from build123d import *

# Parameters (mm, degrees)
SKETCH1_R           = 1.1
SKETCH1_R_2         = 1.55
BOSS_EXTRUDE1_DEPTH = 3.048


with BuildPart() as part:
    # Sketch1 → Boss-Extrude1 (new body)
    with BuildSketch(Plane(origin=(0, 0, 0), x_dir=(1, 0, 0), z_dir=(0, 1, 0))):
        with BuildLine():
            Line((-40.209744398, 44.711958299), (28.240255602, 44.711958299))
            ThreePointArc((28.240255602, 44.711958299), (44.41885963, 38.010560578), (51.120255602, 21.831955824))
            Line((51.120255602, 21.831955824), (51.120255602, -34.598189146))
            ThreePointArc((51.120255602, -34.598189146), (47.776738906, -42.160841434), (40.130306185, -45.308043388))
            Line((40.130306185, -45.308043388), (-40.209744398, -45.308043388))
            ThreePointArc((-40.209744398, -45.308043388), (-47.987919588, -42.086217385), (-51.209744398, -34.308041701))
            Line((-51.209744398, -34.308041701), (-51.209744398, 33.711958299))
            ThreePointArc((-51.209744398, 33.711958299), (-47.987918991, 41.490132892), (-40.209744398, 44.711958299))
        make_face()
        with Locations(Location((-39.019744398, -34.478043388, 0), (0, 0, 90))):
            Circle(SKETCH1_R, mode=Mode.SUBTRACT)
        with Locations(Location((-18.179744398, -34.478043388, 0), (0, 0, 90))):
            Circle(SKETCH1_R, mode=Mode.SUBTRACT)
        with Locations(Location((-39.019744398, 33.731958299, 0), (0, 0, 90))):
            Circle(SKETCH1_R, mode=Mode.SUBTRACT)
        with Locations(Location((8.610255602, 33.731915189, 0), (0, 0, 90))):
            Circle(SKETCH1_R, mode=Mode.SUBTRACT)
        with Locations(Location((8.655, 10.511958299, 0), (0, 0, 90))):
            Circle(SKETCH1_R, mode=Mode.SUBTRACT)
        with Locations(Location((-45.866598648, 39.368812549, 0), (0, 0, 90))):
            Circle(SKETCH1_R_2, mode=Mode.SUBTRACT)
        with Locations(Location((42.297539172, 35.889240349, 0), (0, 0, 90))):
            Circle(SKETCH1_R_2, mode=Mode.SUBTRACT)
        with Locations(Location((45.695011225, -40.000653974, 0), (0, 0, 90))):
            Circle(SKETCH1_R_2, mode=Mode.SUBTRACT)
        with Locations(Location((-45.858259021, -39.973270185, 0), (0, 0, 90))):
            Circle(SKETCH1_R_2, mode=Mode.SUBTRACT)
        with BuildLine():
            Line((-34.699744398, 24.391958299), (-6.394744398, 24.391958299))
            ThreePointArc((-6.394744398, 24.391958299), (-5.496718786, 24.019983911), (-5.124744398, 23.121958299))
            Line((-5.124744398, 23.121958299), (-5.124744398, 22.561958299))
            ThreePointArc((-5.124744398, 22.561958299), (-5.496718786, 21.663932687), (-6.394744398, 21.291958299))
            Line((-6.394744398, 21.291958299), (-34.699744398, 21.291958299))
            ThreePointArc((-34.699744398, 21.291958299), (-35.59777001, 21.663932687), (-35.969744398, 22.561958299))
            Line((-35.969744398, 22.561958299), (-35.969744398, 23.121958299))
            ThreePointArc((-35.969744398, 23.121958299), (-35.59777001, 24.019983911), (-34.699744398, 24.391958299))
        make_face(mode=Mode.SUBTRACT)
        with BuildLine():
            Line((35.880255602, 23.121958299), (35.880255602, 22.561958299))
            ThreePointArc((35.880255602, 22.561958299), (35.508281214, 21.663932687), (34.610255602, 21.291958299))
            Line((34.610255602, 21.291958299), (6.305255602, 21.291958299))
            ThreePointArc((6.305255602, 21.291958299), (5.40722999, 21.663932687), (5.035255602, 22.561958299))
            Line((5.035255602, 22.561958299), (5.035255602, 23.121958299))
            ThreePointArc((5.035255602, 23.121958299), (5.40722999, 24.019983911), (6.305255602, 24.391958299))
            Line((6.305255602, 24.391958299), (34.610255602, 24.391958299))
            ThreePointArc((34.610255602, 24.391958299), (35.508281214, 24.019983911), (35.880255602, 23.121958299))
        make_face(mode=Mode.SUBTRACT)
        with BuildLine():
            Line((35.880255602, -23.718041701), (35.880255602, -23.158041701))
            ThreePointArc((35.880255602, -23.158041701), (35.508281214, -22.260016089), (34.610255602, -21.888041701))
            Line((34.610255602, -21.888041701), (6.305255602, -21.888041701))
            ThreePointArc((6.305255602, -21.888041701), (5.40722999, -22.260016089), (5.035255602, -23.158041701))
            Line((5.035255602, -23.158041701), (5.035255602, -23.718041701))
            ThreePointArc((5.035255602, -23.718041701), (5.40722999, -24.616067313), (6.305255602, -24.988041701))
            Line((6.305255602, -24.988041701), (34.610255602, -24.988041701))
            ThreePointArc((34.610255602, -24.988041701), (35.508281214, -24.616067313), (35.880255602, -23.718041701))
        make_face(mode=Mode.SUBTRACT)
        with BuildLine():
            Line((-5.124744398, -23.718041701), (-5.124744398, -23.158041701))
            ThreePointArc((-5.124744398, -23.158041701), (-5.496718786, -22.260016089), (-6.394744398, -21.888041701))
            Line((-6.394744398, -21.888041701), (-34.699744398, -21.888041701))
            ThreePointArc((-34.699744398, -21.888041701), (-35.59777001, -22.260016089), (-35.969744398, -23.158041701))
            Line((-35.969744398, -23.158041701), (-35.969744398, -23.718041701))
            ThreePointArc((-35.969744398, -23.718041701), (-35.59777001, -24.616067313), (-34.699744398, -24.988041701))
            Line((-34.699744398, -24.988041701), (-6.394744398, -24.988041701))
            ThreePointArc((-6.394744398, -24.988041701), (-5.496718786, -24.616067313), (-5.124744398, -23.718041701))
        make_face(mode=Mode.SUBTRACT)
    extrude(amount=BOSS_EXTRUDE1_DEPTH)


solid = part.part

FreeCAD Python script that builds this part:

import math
import FreeCAD as App
import Part
import Sketcher
from FreeCAD import Vector
Q = App.Units.Quantity

doc = App.newDocument("Part")
body = doc.addObject("PartDesign::Body", "Body")

sketch1 = body.newObject("Sketcher::SketchObject", "Sketch")
sketch1.AttachmentSupport = (doc.getObject("XZ_Plane"), [""])
sketch1.MapMode = "FlatFace"
sketch1.addGeometry(Part.LineSegment(Vector(28.2, -44.7, 0), Vector(-40.2, -44.7, 0)), False)
sketch1.addGeometry(Part.ArcOfCircle(Part.Circle(Vector(-40.2, -33.7, 0), Vector(0, 0, 1), 11), math.radians(180), math.radians(270)), False)
sketch1.addGeometry(Part.LineSegment(Vector(-51.2, -33.7, 0), Vector(-51.2, 34.3, 0)), False)
sketch1.addGeometry(Part.ArcOfCircle(Part.Circle(Vector(-40.2, 34.3, 0), Vector(0, 0, 1), 11), math.radians(90), math.radians(180)), False)
sketch1.addGeometry(Part.LineSegment(Vector(-40.2, 45.3, 0), Vector(40.1, 45.3, 0)), False)
sketch1.addGeometry(Part.ArcOfCircle(Part.Circle(Vector(40, 34.2, 0), Vector(0, 0, 1), 11.1), math.radians(2), math.radians(90)), False)
sketch1.addGeometry(Part.LineSegment(Vector(51.1, 34.6, 0), Vector(51.1, -21.8, 0)), False)
sketch1.addGeometry(Part.ArcOfCircle(Part.Circle(Vector(28.2, -21.8, 0), Vector(0, 0, 1), 22.9), math.radians(-90), math.radians(0)), False)
sketch1.addGeometry(Part.Circle(Vector(45.7, 40, 0), Vector(0, 0, 1), 1.6), False)
sketch1.addGeometry(Part.ArcOfCircle(Part.Circle(Vector(34.6, 23.7, 0), Vector(0, 0, 1), 1.3), math.radians(0), math.radians(90)), False)
sketch1.addGeometry(Part.LineSegment(Vector(34.6, 25, 0), Vector(6.3, 25, 0)), False)
sketch1.addGeometry(Part.ArcOfCircle(Part.Circle(Vector(6.3, 23.7, 0), Vector(0, 0, 1), 1.3), math.radians(90), math.radians(180)), False)
sketch1.addGeometry(Part.LineSegment(Vector(5, 23.7, 0), Vector(5, 23.2, 0)), False)
sketch1.addGeometry(Part.ArcOfCircle(Part.Circle(Vector(6.3, 23.2, 0), Vector(0, 0, 1), 1.3), math.radians(180), math.radians(270)), False)
sketch1.addGeometry(Part.LineSegment(Vector(6.3, 21.9, 0), Vector(34.6, 21.9, 0)), False)
sketch1.addGeometry(Part.ArcOfCircle(Part.Circle(Vector(34.6, 23.2, 0), Vector(0, 0, 1), 1.3), math.radians(-90), math.radians(0)), False)
sketch1.addGeometry(Part.LineSegment(Vector(35.9, 23.2, 0), Vector(35.9, 23.7, 0)), False)
sketch1.addGeometry(Part.Circle(Vector(-18.2, 34.5, 0), Vector(0, 0, 1), 1.1), False)
sketch1.addGeometry(Part.ArcOfCircle(Part.Circle(Vector(-6.4, 23.7, 0), Vector(0, 0, 1), 1.3), math.radians(0), math.radians(90)), False)
sketch1.addGeometry(Part.LineSegment(Vector(-6.4, 25, 0), Vector(-34.7, 25, 0)), False)
sketch1.addGeometry(Part.ArcOfCircle(Part.Circle(Vector(-34.7, 23.7, 0), Vector(0, 0, 1), 1.3), math.radians(90), math.radians(180)), False)
sketch1.addGeometry(Part.LineSegment(Vector(-36, 23.7, 0), Vector(-36, 23.2, 0)), False)
sketch1.addGeometry(Part.ArcOfCircle(Part.Circle(Vector(-34.7, 23.2, 0), Vector(0, 0, 1), 1.3), math.radians(180), math.radians(270)), False)
sketch1.addGeometry(Part.LineSegment(Vector(-34.7, 21.9, 0), Vector(-6.4, 21.9, 0)), False)
sketch1.addGeometry(Part.ArcOfCircle(Part.Circle(Vector(-6.4, 23.2, 0), Vector(0, 0, 1), 1.3), math.radians(-90), math.radians(0)), False)
sketch1.addGeometry(Part.LineSegment(Vector(-5.1, 23.2, 0), Vector(-5.1, 23.7, 0)), False)
sketch1.addGeometry(Part.Circle(Vector(-45.9, 40, 0), Vector(0, 0, 1), 1.6), False)
sketch1.addGeometry(Part.Circle(Vector(-39, 34.5, 0), Vector(0, 0, 1), 1.1), False)
sketch1.addGeometry(Part.Circle(Vector(8.7, -10.5, 0), Vector(0, 0, 1), 1.1), False)
sketch1.addGeometry(Part.Circle(Vector(42.3, -35.9, 0), Vector(0, 0, 1), 1.6), False)
sketch1.addGeometry(Part.LineSegment(Vector(35.9, -23.1, 0), Vector(35.9, -22.6, 0)), False)
sketch1.addGeometry(Part.ArcOfCircle(Part.Circle(Vector(34.6, -22.6, 0), Vector(0, 0, 1), 1.3), math.radians(0), math.radians(90)), False)
sketch1.addGeometry(Part.LineSegment(Vector(34.6, -21.3, 0), Vector(6.3, -21.3, 0)), False)
sketch1.addGeometry(Part.ArcOfCircle(Part.Circle(Vector(6.3, -22.6, 0), Vector(0, 0, 1), 1.3), math.radians(90), math.radians(180)), False)
sketch1.addGeometry(Part.LineSegment(Vector(5, -22.6, 0), Vector(5, -23.1, 0)), False)
sketch1.addGeometry(Part.ArcOfCircle(Part.Circle(Vector(6.3, -23.1, 0), Vector(0, 0, 1), 1.3), math.radians(180), math.radians(270)), False)
sketch1.addGeometry(Part.LineSegment(Vector(6.3, -24.4, 0), Vector(34.6, -24.4, 0)), False)
sketch1.addGeometry(Part.ArcOfCircle(Part.Circle(Vector(34.6, -23.1, 0), Vector(0, 0, 1), 1.3), math.radians(-90), math.radians(0)), False)
sketch1.addGeometry(Part.Circle(Vector(8.6, -33.7, 0), Vector(0, 0, 1), 1.1), False)
sketch1.addGeometry(Part.LineSegment(Vector(-34.7, -24.4, 0), Vector(-6.4, -24.4, 0)), False)
sketch1.addGeometry(Part.ArcOfCircle(Part.Circle(Vector(-6.4, -23.1, 0), Vector(0, 0, 1), 1.3), math.radians(-90), math.radians(0)), False)
sketch1.addGeometry(Part.LineSegment(Vector(-5.1, -23.1, 0), Vector(-5.1, -22.6, 0)), False)
sketch1.addGeometry(Part.ArcOfCircle(Part.Circle(Vector(-6.4, -22.6, 0), Vector(0, 0, 1), 1.3), math.radians(0), math.radians(90)), False)
sketch1.addGeometry(Part.LineSegment(Vector(-6.4, -21.3, 0), Vector(-34.7, -21.3, 0)), False)
sketch1.addGeometry(Part.ArcOfCircle(Part.Circle(Vector(-34.7, -22.6, 0), Vector(0, 0, 1), 1.3), math.radians(90), math.radians(180)), False)
sketch1.addGeometry(Part.LineSegment(Vector(-36, -22.6, 0), Vector(-36, -23.1, 0)), False)
sketch1.addGeometry(Part.ArcOfCircle(Part.Circle(Vector(-34.7, -23.1, 0), Vector(0, 0, 1), 1.3), math.radians(180), math.radians(270)), False)
sketch1.addGeometry(Part.Circle(Vector(-39, -33.7, 0), Vector(0, 0, 1), 1.1), False)
sketch1.addGeometry(Part.Circle(Vector(-45.9, -39.4, 0), Vector(0, 0, 1), 1.6), False)
sketch1.addConstraint(Sketcher.Constraint("Tangent", 0, 2, 1, 2))
sketch1.addConstraint(Sketcher.Constraint("Tangent", 1, 1, 2, 1))
sketch1.addConstraint(Sketcher.Constraint("Tangent", 2, 2, 3, 2))
sketch1.addConstraint(Sketcher.Constraint("Tangent", 3, 1, 4, 1))
sketch1.addConstraint(Sketcher.Constraint("Coincident", 4, 2, 5, 2))
sketch1.addConstraint(Sketcher.Constraint("Coincident", 5, 1, 6, 1))
sketch1.addConstraint(Sketcher.Constraint("Tangent", 6, 2, 7, 2))
sketch1.addConstraint(Sketcher.Constraint("Tangent", 7, 1, 0, 1))
sketch1.addConstraint(Sketcher.Constraint("Tangent", 9, 2, 10, 1))
sketch1.addConstraint(Sketcher.Constraint("Tangent", 10, 2, 11, 1))
sketch1.addConstraint(Sketcher.Constraint("Tangent", 11, 2, 12, 1))
sketch1.addConstraint(Sketcher.Constraint("Tangent", 12, 2, 13, 1))
sketch1.addConstraint(Sketcher.Constraint("Tangent", 13, 2, 14, 1))
sketch1.addConstraint(Sketcher.Constraint("Tangent", 14, 2, 15, 1))
sketch1.addConstraint(Sketcher.Constraint("Tangent", 15, 2, 16, 1))
sketch1.addConstraint(Sketcher.Constraint("Tangent", 16, 2, 9, 1))
sketch1.addConstraint(Sketcher.Constraint("Tangent", 18, 2, 19, 1))
sketch1.addConstraint(Sketcher.Constraint("Tangent", 19, 2, 20, 1))
sketch1.addConstraint(Sketcher.Constraint("Tangent", 20, 2, 21, 1))
sketch1.addConstraint(Sketcher.Constraint("Tangent", 21, 2, 22, 1))
sketch1.addConstraint(Sketcher.Constraint("Tangent", 22, 2, 23, 1))
sketch1.addConstraint(Sketcher.Constraint("Tangent", 23, 2, 24, 1))
sketch1.addConstraint(Sketcher.Constraint("Tangent", 24, 2, 25, 1))
sketch1.addConstraint(Sketcher.Constraint("Tangent", 25, 2, 18, 1))
sketch1.addConstraint(Sketcher.Constraint("Tangent", 30, 2, 31, 1))
sketch1.addConstraint(Sketcher.Constraint("Tangent", 31, 2, 32, 1))
sketch1.addConstraint(Sketcher.Constraint("Tangent", 32, 2, 33, 1))
sketch1.addConstraint(Sketcher.Constraint("Tangent", 33, 2, 34, 1))
sketch1.addConstraint(Sketcher.Constraint("Tangent", 34, 2, 35, 1))
sketch1.addConstraint(Sketcher.Constraint("Tangent", 35, 2, 36, 1))
sketch1.addConstraint(Sketcher.Constraint("Tangent", 36, 2, 37, 1))
sketch1.addConstraint(Sketcher.Constraint("Tangent", 37, 2, 30, 1))
sketch1.addConstraint(Sketcher.Constraint("Tangent", 39, 2, 40, 1))
sketch1.addConstraint(Sketcher.Constraint("Tangent", 40, 2, 41, 1))
sketch1.addConstraint(Sketcher.Constraint("Tangent", 41, 2, 42, 1))
sketch1.addConstraint(Sketcher.Constraint("Tangent", 42, 2, 43, 1))
sketch1.addConstraint(Sketcher.Constraint("Tangent", 43, 2, 44, 1))
sketch1.addConstraint(Sketcher.Constraint("Tangent", 44, 2, 45, 1))
sketch1.addConstraint(Sketcher.Constraint("Tangent", 45, 2, 46, 1))
sketch1.addConstraint(Sketcher.Constraint("Tangent", 46, 2, 39, 1))
sketch1.addConstraint(Sketcher.Constraint("Horizontal", 0))
sketch1.addConstraint(Sketcher.Constraint("Vertical", 2))
sketch1.addConstraint(Sketcher.Constraint("Horizontal", 4))
sketch1.addConstraint(Sketcher.Constraint("Vertical", 6))
sketch1.addConstraint(Sketcher.Constraint("Horizontal", 10))
sketch1.addConstraint(Sketcher.Constraint("Vertical", 12))
sketch1.addConstraint(Sketcher.Constraint("Horizontal", 14))
sketch1.addConstraint(Sketcher.Constraint("Vertical", 16))
sketch1.addConstraint(Sketcher.Constraint("Horizontal", 19))
sketch1.addConstraint(Sketcher.Constraint("Vertical", 21))
sketch1.addConstraint(Sketcher.Constraint("Horizontal", 23))
sketch1.addConstraint(Sketcher.Constraint("Vertical", 25))
sketch1.addConstraint(Sketcher.Constraint("Vertical", 30))
sketch1.addConstraint(Sketcher.Constraint("Horizontal", 32))
sketch1.addConstraint(Sketcher.Constraint("Vertical", 34))
sketch1.addConstraint(Sketcher.Constraint("Horizontal", 36))
sketch1.addConstraint(Sketcher.Constraint("Horizontal", 39))
sketch1.addConstraint(Sketcher.Constraint("Vertical", 41))
sketch1.addConstraint(Sketcher.Constraint("Horizontal", 43))
sketch1.addConstraint(Sketcher.Constraint("Vertical", 45))
sketch1.addConstraint(Sketcher.Constraint("Equal", 1, 3))
sketch1.addConstraint(Sketcher.Constraint("Equal", 9, 11))
sketch1.addConstraint(Sketcher.Constraint("Equal", 11, 13))
sketch1.addConstraint(Sketcher.Constraint("Equal", 13, 15))
sketch1.addConstraint(Sketcher.Constraint("Equal", 15, 18))
sketch1.addConstraint(Sketcher.Constraint("Equal", 18, 20))
sketch1.addConstraint(Sketcher.Constraint("Equal", 20, 22))
sketch1.addConstraint(Sketcher.Constraint("Equal", 22, 24))
sketch1.addConstraint(Sketcher.Constraint("Equal", 8, 26))
sketch1.addConstraint(Sketcher.Constraint("Equal", 17, 27))
sketch1.addConstraint(Sketcher.Constraint("Equal", 27, 28))
sketch1.addConstraint(Sketcher.Constraint("Equal", 26, 29))
sketch1.addConstraint(Sketcher.Constraint("Equal", 24, 31))
sketch1.addConstraint(Sketcher.Constraint("Equal", 31, 33))
sketch1.addConstraint(Sketcher.Constraint("Equal", 33, 35))
sketch1.addConstraint(Sketcher.Constraint("Equal", 35, 37))
sketch1.addConstraint(Sketcher.Constraint("Equal", 28, 38))
sketch1.addConstraint(Sketcher.Constraint("Equal", 37, 40))
sketch1.addConstraint(Sketcher.Constraint("Equal", 40, 42))
sketch1.addConstraint(Sketcher.Constraint("Equal", 42, 44))
sketch1.addConstraint(Sketcher.Constraint("Equal", 44, 46))
sketch1.addConstraint(Sketcher.Constraint("Equal", 38, 47))
sketch1.addConstraint(Sketcher.Constraint("Equal", 29, 48))
sketch1.addConstraint(Sketcher.Constraint("Horizontal", 11, 3, 18, 3))
sketch1.addConstraint(Sketcher.Constraint("Horizontal", 15, 3, 22, 3))
sketch1.addConstraint(Sketcher.Constraint("Horizontal", 17, 3, 27, 3))
sketch1.addConstraint(Sketcher.Constraint("Horizontal", 37, 3, 40, 3))
sketch1.addConstraint(Sketcher.Constraint("Horizontal", 33, 3, 42, 3))
sketch1.addConstraint(Sketcher.Constraint("Vertical", 15, 3, 31, 3))
sketch1.addConstraint(Sketcher.Constraint("Vertical", 13, 3, 33, 3))
sketch1.addConstraint(Sketcher.Constraint("Vertical", 24, 3, 40, 3))
sketch1.addConstraint(Sketcher.Constraint("Vertical", 22, 3, 44, 3))
sketch1.addConstraint(Sketcher.Constraint("Vertical", 27, 3, 47, 3))
sketch1.addConstraint(Sketcher.Constraint("Equal", 14, 19))
sketch1.addConstraint(Sketcher.Constraint("Equal", 25, 30))
sketch1.addConstraint(Sketcher.Constraint("Radius", 1, Q("11 mm")))
sketch1.addConstraint(Sketcher.Constraint("Diameter", 8, Q("3.1 mm")))
sketch1.addConstraint(Sketcher.Constraint("Diameter", 17, Q("2.2 mm")))
sketch1.addConstraint(Sketcher.Constraint("Radius", 7, Q("22.88 mm")))
sketch1.addConstraint(Sketcher.Constraint("Radius", 9, Q("1.27 mm")))
sketch1.addConstraint(Sketcher.Constraint("DistanceX", 0, 2, 0, 1, Q("68.45 mm")))
sketch1.addConstraint(Sketcher.Constraint("DistanceY", 2, 1, 2, 2, Q("68.02 mm")))
sketch1.addConstraint(Sketcher.Constraint("DistanceY", 12, 2, 12, 1, Q("0.56 mm")))
sketch1.addConstraint(Sketcher.Constraint("DistanceX", 10, 2, 10, 1, Q("28.305 mm")))
sketch1.addConstraint(Sketcher.Constraint("DistanceX", -1, 1, 28, 3, Q("8.655 mm")))
sketch1.addConstraint(Sketcher.Constraint("Radius", 5, Q("11.089888 mm")))
sketch1.addConstraint(Sketcher.Constraint("DistanceX", 4, 1, 4, 2, Q("80.340051 mm")))
sketch1.addConstraint(Sketcher.Constraint("DistanceX", 48, 3, -1, 1, Q("45.866599 mm")))
sketch1.addConstraint(Sketcher.Constraint("DistanceY", 6, 2, 6, 1, Q("56.430145 mm")))
sketch1.addConstraint(Sketcher.Constraint("DistanceY", 1, 3, -1, 1, Q("33.711958 mm")))
sketch1.addConstraint(Sketcher.Constraint("DistanceX", -1, 1, 8, 3, Q("45.695011 mm")))
sketch1.addConstraint(Sketcher.Constraint("DistanceY", -1, 1, 9, 3, Q("23.718042 mm")))
sketch1.addConstraint(Sketcher.Constraint("DistanceX", 26, 3, -1, 1, Q("45.858259 mm")))
sketch1.addConstraint(Sketcher.Constraint("DistanceY", -1, 1, 26, 3, Q("39.97327 mm")))
sketch1.addConstraint(Sketcher.Constraint("DistanceY", 28, 3, -1, 1, Q("10.511958 mm")))
sketch1.addConstraint(Sketcher.Constraint("DistanceX", -1, 1, 29, 3, Q("42.297539 mm")))
sketch1.addConstraint(Sketcher.Constraint("DistanceY", 29, 3, -1, 1, Q("35.88924 mm")))
sketch1.addConstraint(Sketcher.Constraint("DistanceY", 31, 3, -1, 1, Q("22.561958 mm")))
sketch1.addConstraint(Sketcher.Constraint("DistanceY", 47, 3, -1, 1, Q("33.731958 mm")))
sketch1.addConstraint(Sketcher.Constraint("DistanceX", 1, 3, -1, 1, Q("40.209744 mm")))
sketch1.addConstraint(Sketcher.Constraint("DistanceY", -1, 1, 8, 3, Q("40.000654 mm")))
sketch1.addConstraint(Sketcher.Constraint("DistanceX", -1, 1, 9, 3, Q("34.610256 mm")))
sketch1.addConstraint(Sketcher.Constraint("DistanceX", 17, 3, -1, 1, Q("18.179744 mm")))
sketch1.addConstraint(Sketcher.Constraint("DistanceY", -1, 1, 17, 3, Q("34.478043 mm")))
sketch1.addConstraint(Sketcher.Constraint("DistanceX", 18, 3, -1, 1, Q("6.394744 mm")))
sketch1.addConstraint(Sketcher.Constraint("DistanceX", 27, 3, -1, 1, Q("39.019744 mm")))
sketch1.addConstraint(Sketcher.Constraint("DistanceX", -1, 1, 38, 3, Q("8.610256 mm")))
sketch1.addConstraint(Sketcher.Constraint("DistanceY", 38, 3, -1, 1, Q("33.731915 mm")))
sketch1.addConstraint(Sketcher.Constraint("DistanceY", 48, 3, -1, 1, Q("39.368813 mm")))
pad1 = body.newObject("PartDesign::Pad", "Pad")
pad1.Profile = sketch1
pad1.Length = 3.048
pad1.Reversed = True

doc.recompute()
